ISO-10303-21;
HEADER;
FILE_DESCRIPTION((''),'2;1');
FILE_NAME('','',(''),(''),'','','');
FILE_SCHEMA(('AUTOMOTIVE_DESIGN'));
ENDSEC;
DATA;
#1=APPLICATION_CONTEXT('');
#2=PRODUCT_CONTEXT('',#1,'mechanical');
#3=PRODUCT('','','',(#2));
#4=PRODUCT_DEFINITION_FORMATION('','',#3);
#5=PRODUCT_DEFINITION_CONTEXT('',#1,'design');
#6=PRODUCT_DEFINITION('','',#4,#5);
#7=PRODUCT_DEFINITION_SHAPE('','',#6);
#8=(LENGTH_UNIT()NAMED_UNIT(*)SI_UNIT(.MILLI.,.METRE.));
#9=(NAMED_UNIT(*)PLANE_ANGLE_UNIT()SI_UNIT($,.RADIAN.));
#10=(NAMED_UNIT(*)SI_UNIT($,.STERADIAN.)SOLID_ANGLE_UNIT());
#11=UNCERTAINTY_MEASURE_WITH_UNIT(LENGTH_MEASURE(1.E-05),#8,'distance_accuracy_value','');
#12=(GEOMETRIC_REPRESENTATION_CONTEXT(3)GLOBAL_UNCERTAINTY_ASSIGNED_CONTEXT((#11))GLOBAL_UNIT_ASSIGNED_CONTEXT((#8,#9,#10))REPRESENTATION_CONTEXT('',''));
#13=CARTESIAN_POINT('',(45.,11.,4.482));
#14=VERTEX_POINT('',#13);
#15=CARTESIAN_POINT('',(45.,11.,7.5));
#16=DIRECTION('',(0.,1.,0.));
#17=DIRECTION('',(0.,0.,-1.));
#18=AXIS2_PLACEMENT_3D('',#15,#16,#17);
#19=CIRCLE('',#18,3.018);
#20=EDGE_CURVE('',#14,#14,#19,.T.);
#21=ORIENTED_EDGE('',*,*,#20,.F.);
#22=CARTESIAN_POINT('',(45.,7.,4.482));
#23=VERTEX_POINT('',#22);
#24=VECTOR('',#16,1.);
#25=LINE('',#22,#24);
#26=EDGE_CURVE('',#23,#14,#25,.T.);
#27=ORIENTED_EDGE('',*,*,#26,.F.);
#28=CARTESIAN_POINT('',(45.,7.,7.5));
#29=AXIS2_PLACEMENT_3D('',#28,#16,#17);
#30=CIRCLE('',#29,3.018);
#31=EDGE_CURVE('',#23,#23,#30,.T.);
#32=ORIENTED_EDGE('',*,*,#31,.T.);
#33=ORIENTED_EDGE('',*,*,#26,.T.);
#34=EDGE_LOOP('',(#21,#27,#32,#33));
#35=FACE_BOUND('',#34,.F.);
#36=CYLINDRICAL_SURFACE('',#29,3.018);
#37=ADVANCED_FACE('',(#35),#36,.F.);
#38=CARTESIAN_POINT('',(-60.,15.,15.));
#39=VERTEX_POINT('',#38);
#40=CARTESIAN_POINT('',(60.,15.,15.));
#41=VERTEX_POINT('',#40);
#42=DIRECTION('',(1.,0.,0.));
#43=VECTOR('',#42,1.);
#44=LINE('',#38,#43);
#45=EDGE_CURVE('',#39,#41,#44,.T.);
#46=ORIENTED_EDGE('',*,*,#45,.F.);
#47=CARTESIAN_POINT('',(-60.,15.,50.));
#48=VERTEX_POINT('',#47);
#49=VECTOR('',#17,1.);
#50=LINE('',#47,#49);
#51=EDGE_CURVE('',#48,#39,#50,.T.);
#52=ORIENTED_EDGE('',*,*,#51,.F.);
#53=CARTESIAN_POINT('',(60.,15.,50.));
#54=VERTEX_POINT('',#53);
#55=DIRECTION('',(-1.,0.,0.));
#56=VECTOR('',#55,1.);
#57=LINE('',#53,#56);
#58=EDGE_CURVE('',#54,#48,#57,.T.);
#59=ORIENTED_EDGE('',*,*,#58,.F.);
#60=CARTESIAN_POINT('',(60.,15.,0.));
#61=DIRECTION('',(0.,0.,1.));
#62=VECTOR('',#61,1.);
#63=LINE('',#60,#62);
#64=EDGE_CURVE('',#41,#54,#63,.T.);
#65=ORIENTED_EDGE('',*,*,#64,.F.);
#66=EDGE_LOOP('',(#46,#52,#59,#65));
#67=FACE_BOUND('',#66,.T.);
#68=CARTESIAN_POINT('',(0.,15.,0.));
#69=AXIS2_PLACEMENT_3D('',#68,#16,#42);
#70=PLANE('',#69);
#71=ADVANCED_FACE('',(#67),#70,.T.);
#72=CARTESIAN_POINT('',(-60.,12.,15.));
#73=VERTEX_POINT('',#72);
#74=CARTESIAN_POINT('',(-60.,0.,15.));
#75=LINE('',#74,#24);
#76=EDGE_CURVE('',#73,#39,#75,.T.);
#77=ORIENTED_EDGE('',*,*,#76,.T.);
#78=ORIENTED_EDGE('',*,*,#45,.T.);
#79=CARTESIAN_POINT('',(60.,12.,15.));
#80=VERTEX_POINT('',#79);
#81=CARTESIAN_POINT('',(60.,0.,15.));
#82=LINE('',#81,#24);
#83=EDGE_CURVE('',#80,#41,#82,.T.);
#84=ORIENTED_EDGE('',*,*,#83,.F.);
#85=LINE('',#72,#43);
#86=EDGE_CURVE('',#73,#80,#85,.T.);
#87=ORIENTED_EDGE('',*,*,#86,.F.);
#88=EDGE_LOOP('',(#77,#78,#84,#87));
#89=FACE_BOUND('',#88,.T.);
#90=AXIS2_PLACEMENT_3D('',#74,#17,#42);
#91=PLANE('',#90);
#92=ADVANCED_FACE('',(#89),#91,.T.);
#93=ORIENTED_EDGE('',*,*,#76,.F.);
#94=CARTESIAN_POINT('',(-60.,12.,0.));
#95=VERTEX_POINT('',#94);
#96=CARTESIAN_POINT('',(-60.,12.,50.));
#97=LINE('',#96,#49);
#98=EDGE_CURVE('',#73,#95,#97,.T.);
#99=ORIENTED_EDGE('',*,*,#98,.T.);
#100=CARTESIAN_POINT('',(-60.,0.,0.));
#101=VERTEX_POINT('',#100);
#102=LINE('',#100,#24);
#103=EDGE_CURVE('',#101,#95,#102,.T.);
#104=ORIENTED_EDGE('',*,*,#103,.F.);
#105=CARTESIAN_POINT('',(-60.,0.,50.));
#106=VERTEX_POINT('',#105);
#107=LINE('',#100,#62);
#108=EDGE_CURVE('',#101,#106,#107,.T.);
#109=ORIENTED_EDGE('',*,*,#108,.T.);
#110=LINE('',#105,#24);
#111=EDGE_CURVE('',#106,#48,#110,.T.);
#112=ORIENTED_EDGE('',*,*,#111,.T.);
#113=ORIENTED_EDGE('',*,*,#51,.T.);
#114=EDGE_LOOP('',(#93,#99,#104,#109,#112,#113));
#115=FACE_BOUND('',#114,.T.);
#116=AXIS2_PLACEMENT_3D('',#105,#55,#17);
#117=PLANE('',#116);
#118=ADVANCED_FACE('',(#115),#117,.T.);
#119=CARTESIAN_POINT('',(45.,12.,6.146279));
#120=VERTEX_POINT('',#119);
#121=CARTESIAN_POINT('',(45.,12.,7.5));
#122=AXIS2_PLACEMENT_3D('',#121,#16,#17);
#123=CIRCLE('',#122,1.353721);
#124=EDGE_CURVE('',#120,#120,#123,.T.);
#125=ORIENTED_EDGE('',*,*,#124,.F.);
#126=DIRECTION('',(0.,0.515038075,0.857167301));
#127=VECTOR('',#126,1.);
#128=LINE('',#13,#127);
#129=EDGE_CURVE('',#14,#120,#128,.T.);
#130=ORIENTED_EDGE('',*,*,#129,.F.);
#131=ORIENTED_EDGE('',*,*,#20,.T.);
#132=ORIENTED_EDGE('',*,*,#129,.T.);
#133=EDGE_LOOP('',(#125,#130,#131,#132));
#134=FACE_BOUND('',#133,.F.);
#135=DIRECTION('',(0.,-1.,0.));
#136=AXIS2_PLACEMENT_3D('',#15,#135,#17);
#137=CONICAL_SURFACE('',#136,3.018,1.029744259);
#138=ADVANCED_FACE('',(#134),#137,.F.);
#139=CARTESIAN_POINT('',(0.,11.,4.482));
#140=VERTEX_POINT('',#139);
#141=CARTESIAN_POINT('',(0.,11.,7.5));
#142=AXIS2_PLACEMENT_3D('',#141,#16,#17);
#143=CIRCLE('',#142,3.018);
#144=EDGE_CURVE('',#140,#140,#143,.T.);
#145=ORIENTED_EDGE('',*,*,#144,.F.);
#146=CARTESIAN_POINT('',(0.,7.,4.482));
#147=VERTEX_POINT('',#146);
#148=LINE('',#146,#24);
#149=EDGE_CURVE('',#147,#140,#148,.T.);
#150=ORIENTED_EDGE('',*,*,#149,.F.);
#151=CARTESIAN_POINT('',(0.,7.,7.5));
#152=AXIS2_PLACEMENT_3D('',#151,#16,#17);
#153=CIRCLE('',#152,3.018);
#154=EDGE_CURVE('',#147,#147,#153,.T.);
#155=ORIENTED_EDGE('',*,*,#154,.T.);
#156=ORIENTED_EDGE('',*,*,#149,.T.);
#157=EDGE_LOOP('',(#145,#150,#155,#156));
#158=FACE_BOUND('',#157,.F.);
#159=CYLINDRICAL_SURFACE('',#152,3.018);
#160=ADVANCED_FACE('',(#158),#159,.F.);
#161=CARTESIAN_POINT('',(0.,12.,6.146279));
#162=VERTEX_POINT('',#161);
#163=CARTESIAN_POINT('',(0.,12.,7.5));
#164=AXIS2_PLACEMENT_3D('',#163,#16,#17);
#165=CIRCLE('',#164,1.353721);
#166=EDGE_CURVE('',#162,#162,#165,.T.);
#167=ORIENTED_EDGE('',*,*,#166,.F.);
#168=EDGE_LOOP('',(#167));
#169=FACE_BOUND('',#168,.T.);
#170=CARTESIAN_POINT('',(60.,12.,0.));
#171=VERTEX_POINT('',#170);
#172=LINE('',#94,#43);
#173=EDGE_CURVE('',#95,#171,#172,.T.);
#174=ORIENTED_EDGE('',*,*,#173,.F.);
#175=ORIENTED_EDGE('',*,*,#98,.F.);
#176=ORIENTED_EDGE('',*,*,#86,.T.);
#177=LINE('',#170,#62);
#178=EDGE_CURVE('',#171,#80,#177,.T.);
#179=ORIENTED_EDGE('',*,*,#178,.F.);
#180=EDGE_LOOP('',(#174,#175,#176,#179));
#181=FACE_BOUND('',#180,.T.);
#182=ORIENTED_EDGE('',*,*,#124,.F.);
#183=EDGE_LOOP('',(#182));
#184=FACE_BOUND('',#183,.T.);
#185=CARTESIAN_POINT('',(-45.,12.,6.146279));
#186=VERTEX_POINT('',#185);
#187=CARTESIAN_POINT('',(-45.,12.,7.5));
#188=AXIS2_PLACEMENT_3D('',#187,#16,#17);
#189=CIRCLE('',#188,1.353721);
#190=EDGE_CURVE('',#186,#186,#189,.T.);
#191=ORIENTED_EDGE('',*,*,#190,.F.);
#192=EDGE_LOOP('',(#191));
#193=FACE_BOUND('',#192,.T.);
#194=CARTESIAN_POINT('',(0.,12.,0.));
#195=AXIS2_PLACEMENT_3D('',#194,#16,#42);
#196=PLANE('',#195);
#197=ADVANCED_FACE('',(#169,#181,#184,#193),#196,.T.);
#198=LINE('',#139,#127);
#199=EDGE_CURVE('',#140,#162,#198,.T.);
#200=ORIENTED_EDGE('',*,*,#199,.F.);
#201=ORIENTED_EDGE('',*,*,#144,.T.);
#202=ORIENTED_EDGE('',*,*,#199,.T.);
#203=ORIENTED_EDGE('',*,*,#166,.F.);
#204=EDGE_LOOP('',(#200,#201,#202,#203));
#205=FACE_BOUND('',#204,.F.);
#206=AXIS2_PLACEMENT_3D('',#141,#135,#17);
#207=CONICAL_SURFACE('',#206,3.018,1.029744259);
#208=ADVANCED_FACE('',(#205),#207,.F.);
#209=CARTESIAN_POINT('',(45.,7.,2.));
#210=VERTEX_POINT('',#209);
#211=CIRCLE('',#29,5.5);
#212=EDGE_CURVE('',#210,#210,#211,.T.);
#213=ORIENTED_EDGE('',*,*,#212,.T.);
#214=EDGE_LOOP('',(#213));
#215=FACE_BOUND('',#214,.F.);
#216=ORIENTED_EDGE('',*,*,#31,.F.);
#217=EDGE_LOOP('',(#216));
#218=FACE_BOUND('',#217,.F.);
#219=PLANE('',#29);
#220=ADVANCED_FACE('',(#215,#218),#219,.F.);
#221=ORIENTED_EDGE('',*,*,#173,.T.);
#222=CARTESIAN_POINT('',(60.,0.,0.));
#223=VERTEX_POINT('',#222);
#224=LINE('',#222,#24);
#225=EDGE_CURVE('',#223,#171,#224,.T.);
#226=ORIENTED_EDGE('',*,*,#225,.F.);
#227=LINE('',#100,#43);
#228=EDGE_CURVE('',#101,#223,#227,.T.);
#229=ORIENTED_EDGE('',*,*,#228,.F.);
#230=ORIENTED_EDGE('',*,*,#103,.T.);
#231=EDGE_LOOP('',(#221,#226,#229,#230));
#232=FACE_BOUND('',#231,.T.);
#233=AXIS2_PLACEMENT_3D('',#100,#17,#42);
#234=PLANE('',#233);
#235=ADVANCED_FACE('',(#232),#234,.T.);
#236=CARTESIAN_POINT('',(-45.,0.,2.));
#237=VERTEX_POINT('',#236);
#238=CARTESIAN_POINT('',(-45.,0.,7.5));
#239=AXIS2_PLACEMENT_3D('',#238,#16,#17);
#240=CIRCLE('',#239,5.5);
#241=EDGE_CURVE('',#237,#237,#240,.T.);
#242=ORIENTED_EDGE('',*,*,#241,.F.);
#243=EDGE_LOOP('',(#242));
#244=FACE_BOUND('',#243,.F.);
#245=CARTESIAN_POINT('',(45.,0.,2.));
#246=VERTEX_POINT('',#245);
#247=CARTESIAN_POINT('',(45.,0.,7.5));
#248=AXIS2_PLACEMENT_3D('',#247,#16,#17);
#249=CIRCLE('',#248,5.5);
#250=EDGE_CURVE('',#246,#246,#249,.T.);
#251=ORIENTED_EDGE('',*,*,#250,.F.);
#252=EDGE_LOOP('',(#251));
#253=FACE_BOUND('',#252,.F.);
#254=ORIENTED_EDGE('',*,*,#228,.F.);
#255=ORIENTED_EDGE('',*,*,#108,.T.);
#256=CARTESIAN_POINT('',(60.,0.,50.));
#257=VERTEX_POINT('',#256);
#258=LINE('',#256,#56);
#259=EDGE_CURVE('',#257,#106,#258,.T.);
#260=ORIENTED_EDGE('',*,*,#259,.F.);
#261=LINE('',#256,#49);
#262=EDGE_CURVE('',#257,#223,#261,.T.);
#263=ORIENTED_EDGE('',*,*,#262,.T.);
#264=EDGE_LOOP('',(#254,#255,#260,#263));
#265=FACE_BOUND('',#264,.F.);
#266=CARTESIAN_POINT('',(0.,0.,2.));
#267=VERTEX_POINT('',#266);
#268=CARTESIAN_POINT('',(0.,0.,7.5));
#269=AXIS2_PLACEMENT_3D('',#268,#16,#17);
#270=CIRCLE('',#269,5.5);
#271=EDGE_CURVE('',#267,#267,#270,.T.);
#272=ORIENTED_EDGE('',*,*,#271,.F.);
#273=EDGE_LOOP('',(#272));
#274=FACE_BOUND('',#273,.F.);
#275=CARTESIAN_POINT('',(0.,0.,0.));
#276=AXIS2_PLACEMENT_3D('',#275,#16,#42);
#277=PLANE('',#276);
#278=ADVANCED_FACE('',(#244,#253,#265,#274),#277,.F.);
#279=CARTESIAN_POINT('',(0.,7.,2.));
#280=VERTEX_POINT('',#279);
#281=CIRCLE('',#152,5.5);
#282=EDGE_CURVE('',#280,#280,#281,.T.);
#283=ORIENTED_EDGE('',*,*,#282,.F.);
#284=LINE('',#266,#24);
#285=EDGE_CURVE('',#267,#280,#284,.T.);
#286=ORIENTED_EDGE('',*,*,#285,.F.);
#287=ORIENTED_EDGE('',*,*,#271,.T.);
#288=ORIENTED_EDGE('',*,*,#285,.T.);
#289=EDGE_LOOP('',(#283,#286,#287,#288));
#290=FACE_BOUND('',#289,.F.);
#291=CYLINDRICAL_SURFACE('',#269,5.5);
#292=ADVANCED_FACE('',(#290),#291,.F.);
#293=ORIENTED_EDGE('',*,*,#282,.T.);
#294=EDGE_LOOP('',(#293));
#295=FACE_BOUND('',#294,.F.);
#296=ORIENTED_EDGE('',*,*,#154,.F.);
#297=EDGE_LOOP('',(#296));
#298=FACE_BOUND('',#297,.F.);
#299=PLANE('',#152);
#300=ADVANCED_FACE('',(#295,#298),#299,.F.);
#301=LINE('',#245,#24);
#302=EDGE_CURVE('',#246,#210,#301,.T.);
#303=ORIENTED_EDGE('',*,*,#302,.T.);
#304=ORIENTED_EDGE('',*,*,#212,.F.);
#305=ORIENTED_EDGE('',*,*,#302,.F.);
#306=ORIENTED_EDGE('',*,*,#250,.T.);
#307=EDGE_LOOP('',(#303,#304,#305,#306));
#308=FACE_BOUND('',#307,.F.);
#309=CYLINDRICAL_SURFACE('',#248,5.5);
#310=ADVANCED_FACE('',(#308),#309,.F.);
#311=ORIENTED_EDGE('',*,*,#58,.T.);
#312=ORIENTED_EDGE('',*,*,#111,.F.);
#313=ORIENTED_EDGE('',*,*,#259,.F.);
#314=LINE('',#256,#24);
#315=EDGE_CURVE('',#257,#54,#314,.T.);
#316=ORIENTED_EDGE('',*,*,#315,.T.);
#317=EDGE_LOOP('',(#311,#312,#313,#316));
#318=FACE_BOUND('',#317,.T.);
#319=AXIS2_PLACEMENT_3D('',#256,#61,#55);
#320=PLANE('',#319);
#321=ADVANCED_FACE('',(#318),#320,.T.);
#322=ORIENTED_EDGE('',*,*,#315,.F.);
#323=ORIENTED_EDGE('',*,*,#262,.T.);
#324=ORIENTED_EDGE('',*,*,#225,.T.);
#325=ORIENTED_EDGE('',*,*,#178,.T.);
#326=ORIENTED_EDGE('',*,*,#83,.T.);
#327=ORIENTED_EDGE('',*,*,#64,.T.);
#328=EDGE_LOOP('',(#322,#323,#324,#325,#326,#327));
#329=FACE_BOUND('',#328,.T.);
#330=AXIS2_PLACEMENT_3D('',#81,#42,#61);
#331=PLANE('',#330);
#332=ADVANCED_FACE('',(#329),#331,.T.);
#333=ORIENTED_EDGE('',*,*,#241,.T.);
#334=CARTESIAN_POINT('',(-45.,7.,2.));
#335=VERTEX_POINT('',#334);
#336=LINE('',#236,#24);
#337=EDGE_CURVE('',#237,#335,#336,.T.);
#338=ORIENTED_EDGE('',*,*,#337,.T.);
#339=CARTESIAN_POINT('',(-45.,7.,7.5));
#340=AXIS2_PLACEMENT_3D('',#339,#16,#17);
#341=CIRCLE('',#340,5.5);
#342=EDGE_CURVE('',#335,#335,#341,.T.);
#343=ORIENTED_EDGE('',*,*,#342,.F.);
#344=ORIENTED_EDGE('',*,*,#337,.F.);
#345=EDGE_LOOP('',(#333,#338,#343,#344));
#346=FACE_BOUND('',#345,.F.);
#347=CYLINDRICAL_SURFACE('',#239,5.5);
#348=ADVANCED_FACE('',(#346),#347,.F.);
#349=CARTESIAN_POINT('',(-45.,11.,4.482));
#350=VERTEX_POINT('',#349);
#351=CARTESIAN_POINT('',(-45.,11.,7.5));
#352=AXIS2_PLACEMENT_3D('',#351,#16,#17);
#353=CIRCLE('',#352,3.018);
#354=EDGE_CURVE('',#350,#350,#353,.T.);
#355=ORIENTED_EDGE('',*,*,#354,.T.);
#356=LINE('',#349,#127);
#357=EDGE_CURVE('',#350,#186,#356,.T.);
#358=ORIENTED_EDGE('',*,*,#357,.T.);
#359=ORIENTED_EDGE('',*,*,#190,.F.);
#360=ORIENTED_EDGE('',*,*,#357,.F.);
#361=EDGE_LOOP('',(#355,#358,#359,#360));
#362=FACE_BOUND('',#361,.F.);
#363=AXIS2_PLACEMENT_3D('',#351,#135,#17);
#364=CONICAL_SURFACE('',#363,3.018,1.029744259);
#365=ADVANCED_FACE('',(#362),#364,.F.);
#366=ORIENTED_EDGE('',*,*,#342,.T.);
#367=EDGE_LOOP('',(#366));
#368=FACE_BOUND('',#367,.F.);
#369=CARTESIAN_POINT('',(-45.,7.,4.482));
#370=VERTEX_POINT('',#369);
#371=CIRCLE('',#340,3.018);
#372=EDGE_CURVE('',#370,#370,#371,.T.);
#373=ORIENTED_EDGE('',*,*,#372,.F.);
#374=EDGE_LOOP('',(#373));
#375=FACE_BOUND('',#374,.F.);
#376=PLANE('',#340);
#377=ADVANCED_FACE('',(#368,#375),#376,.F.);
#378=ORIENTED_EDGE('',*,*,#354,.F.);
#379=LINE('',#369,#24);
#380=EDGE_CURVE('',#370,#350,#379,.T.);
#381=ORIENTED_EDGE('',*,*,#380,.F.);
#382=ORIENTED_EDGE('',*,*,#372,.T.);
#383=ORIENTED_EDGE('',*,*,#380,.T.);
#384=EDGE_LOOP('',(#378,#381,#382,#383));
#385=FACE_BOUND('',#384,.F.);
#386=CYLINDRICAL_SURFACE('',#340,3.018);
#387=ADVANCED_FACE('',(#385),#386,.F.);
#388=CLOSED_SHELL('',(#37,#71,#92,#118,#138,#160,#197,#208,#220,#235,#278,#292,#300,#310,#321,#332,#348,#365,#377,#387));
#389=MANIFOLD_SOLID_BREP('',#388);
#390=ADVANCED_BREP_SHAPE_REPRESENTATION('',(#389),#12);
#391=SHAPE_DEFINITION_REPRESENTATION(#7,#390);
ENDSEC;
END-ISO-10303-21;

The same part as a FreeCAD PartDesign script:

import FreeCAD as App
import Part
import Sketcher


def add_polygon(sketch, points):
    """Adds a closed chain of lines whose ends are joined by coincident constraints."""
    first, n = sketch.GeometryCount, len(points)
    for a, b in zip(points, points[1:] + points[:1]):
        sketch.addGeometry(Part.LineSegment(App.Vector(*a, 0), App.Vector(*b, 0)), False)
    for i in range(n):
        sketch.addConstraint(Sketcher.Constraint("Coincident", first + i, 2, first + (i + 1) % n, 1))

doc = App.newDocument("Part")
params = doc.addObject("Spreadsheet::Sheet", "Params")
for row, (alias, value) in enumerate([
    ("sketch1_width", "120 mm"),
    ("pad1_length", "15 mm"),
    ("sketch2_width", "120 mm"),
    ("sketch2_height", "15 mm"),
    ("pad2_length", "12 mm"),
    ("hole_diameter", "6.036 mm"),
    ("hole_depth", "11 mm"),
    ("hole_cbore_diameter", "11 mm"),
    ("hole_cbore_depth", "7 mm"),
], start=1):
    params.set(f"A{row}", alias)
    params.set(f"B{row}", "=" + value)
    params.setAlias(f"B{row}", alias)

body = doc.addObject("PartDesign::Body", "Body")

sketch1 = body.newObject("Sketcher::SketchObject", "Sketch")
sketch1.AttachmentSupport = (doc.getObject("XZ_Plane"), [""])
sketch1.MapMode = "FlatFace"
add_polygon(sketch1, [(60, 15), (-60, 15), (-60, 50), (60, 50)])
sketch1.addConstraint([
    Sketcher.Constraint("Horizontal", 0),
    Sketcher.Constraint("Vertical", 1),
    Sketcher.Constraint("Horizontal", 2),
    Sketcher.Constraint("Vertical", 3),
    Sketcher.Constraint("DistanceX", 0, 2, 0, 1, 120.0),
    Sketcher.Constraint("DistanceY", -1, 1, 0, 2, 15.0),
    Sketcher.Constraint("DistanceY", -1, 1, 1, 2, 50.0),
    Sketcher.Constraint("DistanceX", 0, 2, -1, 1, 60.0),
])
sketch1.setExpression("Constraints[8]", "Params.sketch1_width")
pad1 = body.newObject("PartDesign::Pad", "Pad")
pad1.Profile = sketch1
pad1.setExpression("Length", "Params.pad1_length")
pad1.Reversed = True

sketch2 = body.newObject("Sketcher::SketchObject", "Sketch001")
sketch2.AttachmentSupport = (doc.getObject("XZ_Plane"), [""])
sketch2.MapMode = "FlatFace"
add_polygon(sketch2, [(60, 0), (-60, 0), (-60, 15), (60, 15)])
sketch2.addConstraint([
    Sketcher.Constraint("Horizontal", 0),
    Sketcher.Constraint("Vertical", 1),
    Sketcher.Constraint("Horizontal", 2),
    Sketcher.Constraint("Vertical", 3),
    Sketcher.Constraint("Symmetric", 0, 2, 3, 2, -1, 1),
    Sketcher.Constraint("DistanceX", 0, 2, 0, 1, 120.0),
    Sketcher.Constraint("DistanceY", 1, 1, 1, 2, 15.0),
])
sketch2.setExpression("Constraints[9]", "Params.sketch2_width")
sketch2.setExpression("Constraints[10]", "Params.sketch2_height")
pad2 = body.newObject("PartDesign::Pad", "Pad001")
pad2.Profile = sketch2
pad2.setExpression("Length", "Params.pad2_length")
pad2.Reversed = True

sketch3 = body.newObject("Sketcher::SketchObject", "Sketch002")
sketch3.AttachmentSupport = (doc.getObject("XZ_Plane"), [""])
sketch3.MapMode = "FlatFace"
sketch3.addGeometry([
    Part.Circle(App.Vector(-45, 7.5, 0), App.Vector(0, 0, 1), 3),
    Part.Circle(App.Vector(45, 7.5, 0), App.Vector(0, 0, 1), 3),
    Part.Circle(App.Vector(0, 7.5, 0), App.Vector(0, 0, 1), 3),
], False)
sketch3.addConstraint([
    Sketcher.Constraint("Equal", 0, 1),
    Sketcher.Constraint("Equal", 1, 2),
    Sketcher.Constraint("Symmetric", 0, 3, 1, 3, -2),
    Sketcher.Constraint("PointOnObject", 2, 3, -2),
    Sketcher.Constraint("Horizontal", 1, 3, 2, 3),
    Sketcher.Constraint("Diameter", 0, 6.036),
    Sketcher.Constraint("DistanceX", 0, 3, -1, 1, 45.0),
    Sketcher.Constraint("DistanceY", -1, 1, 0, 3, 7.5),
])
doc.recompute()
hole = body.newObject("PartDesign::Hole", "Hole")
hole.Profile = sketch3
hole.ThreadType = "None"
hole.setExpression("Diameter", "Params.hole_diameter")
hole.DepthType = "Dimension"
hole.setExpression("Depth", "Params.hole_depth")
hole.DrillPoint = "Angled"
hole.DrillPointAngle = 118
hole.HoleCutType = "Counterbore"
hole.setExpression("HoleCutDiameter", "Params.hole_cbore_diameter")
hole.setExpression("HoleCutDepth", "Params.hole_cbore_depth")

doc.recompute()
